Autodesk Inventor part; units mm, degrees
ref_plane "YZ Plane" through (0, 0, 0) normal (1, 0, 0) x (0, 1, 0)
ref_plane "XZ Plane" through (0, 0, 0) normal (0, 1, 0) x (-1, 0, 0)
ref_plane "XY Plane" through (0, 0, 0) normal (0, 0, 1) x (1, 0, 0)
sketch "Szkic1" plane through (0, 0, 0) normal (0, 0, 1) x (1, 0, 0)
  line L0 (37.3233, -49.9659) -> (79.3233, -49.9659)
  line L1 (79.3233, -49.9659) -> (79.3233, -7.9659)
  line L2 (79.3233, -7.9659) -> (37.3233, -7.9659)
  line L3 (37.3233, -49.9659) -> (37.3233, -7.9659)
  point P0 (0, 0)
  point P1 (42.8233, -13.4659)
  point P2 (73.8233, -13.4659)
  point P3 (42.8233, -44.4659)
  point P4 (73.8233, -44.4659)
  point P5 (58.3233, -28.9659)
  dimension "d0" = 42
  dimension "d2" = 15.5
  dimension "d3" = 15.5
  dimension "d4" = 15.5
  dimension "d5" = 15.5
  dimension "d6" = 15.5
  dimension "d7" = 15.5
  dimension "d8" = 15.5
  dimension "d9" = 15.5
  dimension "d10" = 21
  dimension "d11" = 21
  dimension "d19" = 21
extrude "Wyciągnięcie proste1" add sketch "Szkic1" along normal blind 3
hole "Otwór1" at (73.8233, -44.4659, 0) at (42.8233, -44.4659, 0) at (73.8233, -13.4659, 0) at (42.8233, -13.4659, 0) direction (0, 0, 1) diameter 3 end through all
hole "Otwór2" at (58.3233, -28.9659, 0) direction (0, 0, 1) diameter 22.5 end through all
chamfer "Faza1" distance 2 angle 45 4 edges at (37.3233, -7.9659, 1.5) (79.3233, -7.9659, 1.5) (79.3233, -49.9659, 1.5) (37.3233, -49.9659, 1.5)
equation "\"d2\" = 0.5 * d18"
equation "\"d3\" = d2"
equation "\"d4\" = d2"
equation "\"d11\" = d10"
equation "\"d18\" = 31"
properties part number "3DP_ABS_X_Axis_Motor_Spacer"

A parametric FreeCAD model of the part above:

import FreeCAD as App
import Part
import Sketcher

V = App.Vector
Q = App.Units.Quantity


def edges_at(feature, points):
    """Names of the edges that pass closest to the given points."""
    edges = feature.Shape.Edges
    near = lambda p: min(range(len(edges)), key=lambda i: edges[i].distToShape(Part.Vertex(*p))[0])
    return sorted({f"Edge{near(p) + 1}" for p in points})


def add_polygon(sketch, points):
    """Adds a closed chain of lines whose ends are joined by coincident constraints."""
    first, n = sketch.GeometryCount, len(points)
    for a, b in zip(points, points[1:] + points[:1]):
        sketch.addGeometry(Part.LineSegment(App.Vector(*a, 0), App.Vector(*b, 0)), False)
    for i in range(n):
        sketch.addConstraint(Sketcher.Constraint("Coincident", first + i, 2, first + (i + 1) % n, 1))

doc = App.newDocument("Part")
body = doc.addObject("PartDesign::Body", "Body")

sketch1 = body.newObject("Sketcher::SketchObject", "Sketch")
sketch1.AttachmentSupport = (doc.getObject("XY_Plane"), [""])
sketch1.MapMode = "FlatFace"
add_polygon(sketch1, [(37, -8), (37, -50), (79, -50), (79, -8)])
sketch1.addConstraint(Sketcher.Constraint("Vertical", 0))
sketch1.addConstraint(Sketcher.Constraint("Horizontal", 1))
sketch1.addConstraint(Sketcher.Constraint("Vertical", 2))
sketch1.addConstraint(Sketcher.Constraint("Horizontal", 3))
sketch1.addConstraint(Sketcher.Constraint("Equal", 3, 0))
sketch1.addConstraint(Sketcher.Constraint("DistanceX", 1, 1, 1, 2, Q("42 mm")))
sketch1.addConstraint(Sketcher.Constraint("DistanceY", 0, 2, -1, 1, Q("49.966 mm")))
sketch1.addConstraint(Sketcher.Constraint("DistanceX", -1, 1, 0, 2, Q("37.3233 mm")))
pad1 = body.newObject("PartDesign::Pad", "Pad")
pad1.Profile = sketch1
pad1.Length = 3

sketch2 = body.newObject("Sketcher::SketchObject", "Sketch001")
sketch2.AttachmentSupport = (doc.getObject("XY_Plane"), [""])
sketch2.MapMode = "FlatFace"
sketch2.addGeometry(Part.Circle(V(73.8, -44.5, 0), V(0, 0, 1), 1.5), False)
sketch2.addGeometry(Part.Circle(V(42.8, -44.5, 0), V(0, 0, 1), 1.5), False)
sketch2.addGeometry(Part.Circle(V(73.8, -13.5, 0), V(0, 0, 1), 1.5), False)
sketch2.addGeometry(Part.Circle(V(42.8, -13.5, 0), V(0, 0, 1), 1.5), False)
sketch2.addConstraint(Sketcher.Constraint("Equal", 0, 1))
sketch2.addConstraint(Sketcher.Constraint("Equal", 1, 2))
sketch2.addConstraint(Sketcher.Constraint("Equal", 2, 3))
sketch2.addConstraint(Sketcher.Constraint("Horizontal", 0, 3, 1, 3))
sketch2.addConstraint(Sketcher.Constraint("Horizontal", 2, 3, 3, 3))
sketch2.addConstraint(Sketcher.Constraint("Vertical", 0, 3, 2, 3))
sketch2.addConstraint(Sketcher.Constraint("Vertical", 1, 3, 3, 3))
sketch2.addConstraint(Sketcher.Constraint("Diameter", 0, Q("3 mm")))
sketch2.addConstraint(Sketcher.Constraint("DistanceX", 1, 3, 0, 3, Q("31 mm")))
sketch2.addConstraint(Sketcher.Constraint("DistanceY", 0, 3, 2, 3, Q("31 mm")))
sketch2.addConstraint(Sketcher.Constraint("DistanceY", 0, 3, -1, 1, Q("44.466 mm")))
sketch2.addConstraint(Sketcher.Constraint("DistanceX", -1, 1, 0, 3, Q("73.8233 mm")))
doc.recompute()
hole = body.newObject("PartDesign::Hole", "Hole")
hole.Profile = sketch2
hole.ThreadType = "None"
hole.Diameter = 3
hole.DepthType = "ThroughAll"
hole.Reversed = True

sketch3 = body.newObject("Sketcher::SketchObject", "Sketch002")
sketch3.AttachmentSupport = (doc.getObject("XY_Plane"), [""])
sketch3.MapMode = "FlatFace"
sketch3.addGeometry(Part.Circle(V(58, -29, 0), V(0, 0, 1), 11), False)
sketch3.addConstraint(Sketcher.Constraint("Diameter", 0, Q("22.5 mm")))
sketch3.addConstraint(Sketcher.Constraint("DistanceY", 0, 3, -1, 1, Q("28.966 mm")))
sketch3.addConstraint(Sketcher.Constraint("DistanceX", -1, 1, 0, 3, Q("58.3233 mm")))
doc.recompute()
hole2 = body.newObject("PartDesign::Hole", "Hole001")
hole2.Profile = sketch3
hole2.ThreadType = "None"
hole2.Diameter = 22.5
hole2.DepthType = "ThroughAll"
hole2.Reversed = True
doc.recompute()

chamfer = body.newObject("PartDesign::Chamfer", "Chamfer")
chamfer.Base = (hole2, edges_at(hole2, [
    (37.323, -7.966, 1.5),
    (79.323, -7.966, 1.5),
    (79.323, -49.966, 1.5),
    (37.323, -49.966, 1.5),
]))
chamfer.Size = 2

doc.recompute()
